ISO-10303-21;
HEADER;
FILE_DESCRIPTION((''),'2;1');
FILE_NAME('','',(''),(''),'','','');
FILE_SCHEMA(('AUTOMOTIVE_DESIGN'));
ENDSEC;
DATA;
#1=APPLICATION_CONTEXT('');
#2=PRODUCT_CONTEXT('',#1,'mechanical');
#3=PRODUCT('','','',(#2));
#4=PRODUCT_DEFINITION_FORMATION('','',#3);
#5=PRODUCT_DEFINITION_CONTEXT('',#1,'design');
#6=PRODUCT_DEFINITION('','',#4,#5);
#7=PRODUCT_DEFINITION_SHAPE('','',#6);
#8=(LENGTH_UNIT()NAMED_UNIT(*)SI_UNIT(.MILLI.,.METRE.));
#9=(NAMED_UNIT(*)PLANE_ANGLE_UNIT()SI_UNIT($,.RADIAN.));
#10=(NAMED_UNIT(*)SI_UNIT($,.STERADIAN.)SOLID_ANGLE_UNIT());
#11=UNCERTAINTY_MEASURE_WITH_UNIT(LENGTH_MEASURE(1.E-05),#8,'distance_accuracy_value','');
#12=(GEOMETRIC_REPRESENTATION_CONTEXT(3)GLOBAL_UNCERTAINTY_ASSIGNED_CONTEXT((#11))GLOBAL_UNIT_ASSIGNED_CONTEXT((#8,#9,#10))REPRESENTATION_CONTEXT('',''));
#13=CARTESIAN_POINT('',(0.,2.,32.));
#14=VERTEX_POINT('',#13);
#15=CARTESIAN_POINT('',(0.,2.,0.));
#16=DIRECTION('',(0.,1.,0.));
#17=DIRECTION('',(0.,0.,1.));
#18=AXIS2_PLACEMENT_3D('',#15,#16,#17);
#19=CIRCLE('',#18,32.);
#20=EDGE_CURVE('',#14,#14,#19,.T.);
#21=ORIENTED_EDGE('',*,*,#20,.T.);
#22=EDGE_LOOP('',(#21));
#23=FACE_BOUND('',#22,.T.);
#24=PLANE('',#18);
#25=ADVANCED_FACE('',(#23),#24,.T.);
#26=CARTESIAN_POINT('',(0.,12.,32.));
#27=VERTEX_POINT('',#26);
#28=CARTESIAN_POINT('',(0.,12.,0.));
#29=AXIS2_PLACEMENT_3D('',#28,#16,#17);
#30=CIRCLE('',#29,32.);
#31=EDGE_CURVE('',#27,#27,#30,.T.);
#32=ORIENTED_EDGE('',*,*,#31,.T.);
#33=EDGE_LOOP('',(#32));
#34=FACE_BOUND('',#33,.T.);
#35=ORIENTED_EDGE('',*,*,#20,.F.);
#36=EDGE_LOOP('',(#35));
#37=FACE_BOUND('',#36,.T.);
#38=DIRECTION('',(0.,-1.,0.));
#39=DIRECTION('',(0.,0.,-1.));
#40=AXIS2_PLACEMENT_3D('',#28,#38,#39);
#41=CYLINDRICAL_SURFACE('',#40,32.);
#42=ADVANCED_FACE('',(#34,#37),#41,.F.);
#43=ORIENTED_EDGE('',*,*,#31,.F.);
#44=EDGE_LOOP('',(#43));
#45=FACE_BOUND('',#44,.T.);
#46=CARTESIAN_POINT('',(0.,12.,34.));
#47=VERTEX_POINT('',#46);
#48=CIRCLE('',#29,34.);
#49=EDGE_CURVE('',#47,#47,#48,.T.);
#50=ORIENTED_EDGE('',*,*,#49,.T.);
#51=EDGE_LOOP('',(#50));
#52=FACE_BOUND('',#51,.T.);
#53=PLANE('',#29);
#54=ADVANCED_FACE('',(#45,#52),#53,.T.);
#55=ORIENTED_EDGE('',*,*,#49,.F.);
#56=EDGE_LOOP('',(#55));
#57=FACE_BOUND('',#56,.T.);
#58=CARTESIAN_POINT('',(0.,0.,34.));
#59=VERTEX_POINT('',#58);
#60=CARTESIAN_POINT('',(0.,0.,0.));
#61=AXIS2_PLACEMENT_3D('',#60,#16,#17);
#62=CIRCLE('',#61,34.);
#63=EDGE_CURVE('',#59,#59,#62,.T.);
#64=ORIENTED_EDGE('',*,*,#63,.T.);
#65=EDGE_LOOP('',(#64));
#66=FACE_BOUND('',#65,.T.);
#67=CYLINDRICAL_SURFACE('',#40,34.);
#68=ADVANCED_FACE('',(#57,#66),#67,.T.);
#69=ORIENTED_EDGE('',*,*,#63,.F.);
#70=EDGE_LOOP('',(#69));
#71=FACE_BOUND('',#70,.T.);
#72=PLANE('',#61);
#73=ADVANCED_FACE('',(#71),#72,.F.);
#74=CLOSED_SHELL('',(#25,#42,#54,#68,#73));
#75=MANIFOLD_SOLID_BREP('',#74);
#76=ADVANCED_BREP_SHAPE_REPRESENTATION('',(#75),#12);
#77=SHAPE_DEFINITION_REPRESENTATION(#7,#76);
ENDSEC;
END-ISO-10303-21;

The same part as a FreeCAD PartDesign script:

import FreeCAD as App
import Part
import Sketcher
from FreeCAD import Vector
Q = App.Units.Quantity

doc = App.newDocument("Part")
body = doc.addObject("PartDesign::Body", "Body")

sketch1 = body.newObject("Sketcher::SketchObject", "Sketch")
sketch1.AttachmentSupport = (doc.getObject("XZ_Plane"), [""])
sketch1.MapMode = "FlatFace"
sketch1.addGeometry([
    Part.Circle(Vector(0, 0, 0), Vector(0, 0, 1), 34),
    Part.Circle(Vector(0, 0, 0), Vector(0, 0, 1), 32),
], False)
sketch1.addConstraint([
    Sketcher.Constraint("Coincident", 0, 3, -1, 1),
    Sketcher.Constraint("Coincident", 1, 3, -1, 1),
    Sketcher.Constraint("Diameter", 0, Q("68 mm")),
    Sketcher.Constraint("Diameter", 1, Q("64 mm")),
])
pad1 = body.newObject("PartDesign::Pad", "Pad")
pad1.Profile = sketch1
pad1.Length = 12
pad1.Reversed = True

sketch2 = body.newObject("Sketcher::SketchObject", "Sketch001")
sketch2.AttachmentSupport = (doc.getObject("XZ_Plane"), [""])
sketch2.MapMode = "FlatFace"
sketch2.addGeometry([
    Part.Circle(Vector(0, 0, 0), Vector(0, 0, 1), 34),
    Part.Circle(Vector(0, 0, 0), Vector(0, 0, 1), 32),
], False)
sketch2.addConstraint([
    Sketcher.Constraint("Coincident", 0, 3, -1, 1),
    Sketcher.Constraint("Coincident", 1, 3, -1, 1),
    Sketcher.Constraint("Diameter", 0, Q("68 mm")),
    Sketcher.Constraint("Diameter", 1, Q("64 mm")),
])
pad2 = body.newObject("PartDesign::Pad", "Pad001")
pad2.Profile = sketch2
pad2.Length = 12
pad2.Reversed = True

sketch3 = body.newObject("Sketcher::SketchObject", "Sketch002")
sketch3.AttachmentSupport = (doc.getObject("XZ_Plane"), [""])
sketch3.MapMode = "FlatFace"
sketch3.addGeometry(Part.Circle(Vector(0, 0, 0), Vector(0, 0, 1), 32), False)
sketch3.addConstraint([
    Sketcher.Constraint("Coincident", 0, 3, -1, 1),
    Sketcher.Constraint("Diameter", 0, Q("64 mm")),
])
pad3 = body.newObject("PartDesign::Pad", "Pad002")
pad3.Profile = sketch3
pad3.Length = 2
pad3.Reversed = True

doc.recompute()
